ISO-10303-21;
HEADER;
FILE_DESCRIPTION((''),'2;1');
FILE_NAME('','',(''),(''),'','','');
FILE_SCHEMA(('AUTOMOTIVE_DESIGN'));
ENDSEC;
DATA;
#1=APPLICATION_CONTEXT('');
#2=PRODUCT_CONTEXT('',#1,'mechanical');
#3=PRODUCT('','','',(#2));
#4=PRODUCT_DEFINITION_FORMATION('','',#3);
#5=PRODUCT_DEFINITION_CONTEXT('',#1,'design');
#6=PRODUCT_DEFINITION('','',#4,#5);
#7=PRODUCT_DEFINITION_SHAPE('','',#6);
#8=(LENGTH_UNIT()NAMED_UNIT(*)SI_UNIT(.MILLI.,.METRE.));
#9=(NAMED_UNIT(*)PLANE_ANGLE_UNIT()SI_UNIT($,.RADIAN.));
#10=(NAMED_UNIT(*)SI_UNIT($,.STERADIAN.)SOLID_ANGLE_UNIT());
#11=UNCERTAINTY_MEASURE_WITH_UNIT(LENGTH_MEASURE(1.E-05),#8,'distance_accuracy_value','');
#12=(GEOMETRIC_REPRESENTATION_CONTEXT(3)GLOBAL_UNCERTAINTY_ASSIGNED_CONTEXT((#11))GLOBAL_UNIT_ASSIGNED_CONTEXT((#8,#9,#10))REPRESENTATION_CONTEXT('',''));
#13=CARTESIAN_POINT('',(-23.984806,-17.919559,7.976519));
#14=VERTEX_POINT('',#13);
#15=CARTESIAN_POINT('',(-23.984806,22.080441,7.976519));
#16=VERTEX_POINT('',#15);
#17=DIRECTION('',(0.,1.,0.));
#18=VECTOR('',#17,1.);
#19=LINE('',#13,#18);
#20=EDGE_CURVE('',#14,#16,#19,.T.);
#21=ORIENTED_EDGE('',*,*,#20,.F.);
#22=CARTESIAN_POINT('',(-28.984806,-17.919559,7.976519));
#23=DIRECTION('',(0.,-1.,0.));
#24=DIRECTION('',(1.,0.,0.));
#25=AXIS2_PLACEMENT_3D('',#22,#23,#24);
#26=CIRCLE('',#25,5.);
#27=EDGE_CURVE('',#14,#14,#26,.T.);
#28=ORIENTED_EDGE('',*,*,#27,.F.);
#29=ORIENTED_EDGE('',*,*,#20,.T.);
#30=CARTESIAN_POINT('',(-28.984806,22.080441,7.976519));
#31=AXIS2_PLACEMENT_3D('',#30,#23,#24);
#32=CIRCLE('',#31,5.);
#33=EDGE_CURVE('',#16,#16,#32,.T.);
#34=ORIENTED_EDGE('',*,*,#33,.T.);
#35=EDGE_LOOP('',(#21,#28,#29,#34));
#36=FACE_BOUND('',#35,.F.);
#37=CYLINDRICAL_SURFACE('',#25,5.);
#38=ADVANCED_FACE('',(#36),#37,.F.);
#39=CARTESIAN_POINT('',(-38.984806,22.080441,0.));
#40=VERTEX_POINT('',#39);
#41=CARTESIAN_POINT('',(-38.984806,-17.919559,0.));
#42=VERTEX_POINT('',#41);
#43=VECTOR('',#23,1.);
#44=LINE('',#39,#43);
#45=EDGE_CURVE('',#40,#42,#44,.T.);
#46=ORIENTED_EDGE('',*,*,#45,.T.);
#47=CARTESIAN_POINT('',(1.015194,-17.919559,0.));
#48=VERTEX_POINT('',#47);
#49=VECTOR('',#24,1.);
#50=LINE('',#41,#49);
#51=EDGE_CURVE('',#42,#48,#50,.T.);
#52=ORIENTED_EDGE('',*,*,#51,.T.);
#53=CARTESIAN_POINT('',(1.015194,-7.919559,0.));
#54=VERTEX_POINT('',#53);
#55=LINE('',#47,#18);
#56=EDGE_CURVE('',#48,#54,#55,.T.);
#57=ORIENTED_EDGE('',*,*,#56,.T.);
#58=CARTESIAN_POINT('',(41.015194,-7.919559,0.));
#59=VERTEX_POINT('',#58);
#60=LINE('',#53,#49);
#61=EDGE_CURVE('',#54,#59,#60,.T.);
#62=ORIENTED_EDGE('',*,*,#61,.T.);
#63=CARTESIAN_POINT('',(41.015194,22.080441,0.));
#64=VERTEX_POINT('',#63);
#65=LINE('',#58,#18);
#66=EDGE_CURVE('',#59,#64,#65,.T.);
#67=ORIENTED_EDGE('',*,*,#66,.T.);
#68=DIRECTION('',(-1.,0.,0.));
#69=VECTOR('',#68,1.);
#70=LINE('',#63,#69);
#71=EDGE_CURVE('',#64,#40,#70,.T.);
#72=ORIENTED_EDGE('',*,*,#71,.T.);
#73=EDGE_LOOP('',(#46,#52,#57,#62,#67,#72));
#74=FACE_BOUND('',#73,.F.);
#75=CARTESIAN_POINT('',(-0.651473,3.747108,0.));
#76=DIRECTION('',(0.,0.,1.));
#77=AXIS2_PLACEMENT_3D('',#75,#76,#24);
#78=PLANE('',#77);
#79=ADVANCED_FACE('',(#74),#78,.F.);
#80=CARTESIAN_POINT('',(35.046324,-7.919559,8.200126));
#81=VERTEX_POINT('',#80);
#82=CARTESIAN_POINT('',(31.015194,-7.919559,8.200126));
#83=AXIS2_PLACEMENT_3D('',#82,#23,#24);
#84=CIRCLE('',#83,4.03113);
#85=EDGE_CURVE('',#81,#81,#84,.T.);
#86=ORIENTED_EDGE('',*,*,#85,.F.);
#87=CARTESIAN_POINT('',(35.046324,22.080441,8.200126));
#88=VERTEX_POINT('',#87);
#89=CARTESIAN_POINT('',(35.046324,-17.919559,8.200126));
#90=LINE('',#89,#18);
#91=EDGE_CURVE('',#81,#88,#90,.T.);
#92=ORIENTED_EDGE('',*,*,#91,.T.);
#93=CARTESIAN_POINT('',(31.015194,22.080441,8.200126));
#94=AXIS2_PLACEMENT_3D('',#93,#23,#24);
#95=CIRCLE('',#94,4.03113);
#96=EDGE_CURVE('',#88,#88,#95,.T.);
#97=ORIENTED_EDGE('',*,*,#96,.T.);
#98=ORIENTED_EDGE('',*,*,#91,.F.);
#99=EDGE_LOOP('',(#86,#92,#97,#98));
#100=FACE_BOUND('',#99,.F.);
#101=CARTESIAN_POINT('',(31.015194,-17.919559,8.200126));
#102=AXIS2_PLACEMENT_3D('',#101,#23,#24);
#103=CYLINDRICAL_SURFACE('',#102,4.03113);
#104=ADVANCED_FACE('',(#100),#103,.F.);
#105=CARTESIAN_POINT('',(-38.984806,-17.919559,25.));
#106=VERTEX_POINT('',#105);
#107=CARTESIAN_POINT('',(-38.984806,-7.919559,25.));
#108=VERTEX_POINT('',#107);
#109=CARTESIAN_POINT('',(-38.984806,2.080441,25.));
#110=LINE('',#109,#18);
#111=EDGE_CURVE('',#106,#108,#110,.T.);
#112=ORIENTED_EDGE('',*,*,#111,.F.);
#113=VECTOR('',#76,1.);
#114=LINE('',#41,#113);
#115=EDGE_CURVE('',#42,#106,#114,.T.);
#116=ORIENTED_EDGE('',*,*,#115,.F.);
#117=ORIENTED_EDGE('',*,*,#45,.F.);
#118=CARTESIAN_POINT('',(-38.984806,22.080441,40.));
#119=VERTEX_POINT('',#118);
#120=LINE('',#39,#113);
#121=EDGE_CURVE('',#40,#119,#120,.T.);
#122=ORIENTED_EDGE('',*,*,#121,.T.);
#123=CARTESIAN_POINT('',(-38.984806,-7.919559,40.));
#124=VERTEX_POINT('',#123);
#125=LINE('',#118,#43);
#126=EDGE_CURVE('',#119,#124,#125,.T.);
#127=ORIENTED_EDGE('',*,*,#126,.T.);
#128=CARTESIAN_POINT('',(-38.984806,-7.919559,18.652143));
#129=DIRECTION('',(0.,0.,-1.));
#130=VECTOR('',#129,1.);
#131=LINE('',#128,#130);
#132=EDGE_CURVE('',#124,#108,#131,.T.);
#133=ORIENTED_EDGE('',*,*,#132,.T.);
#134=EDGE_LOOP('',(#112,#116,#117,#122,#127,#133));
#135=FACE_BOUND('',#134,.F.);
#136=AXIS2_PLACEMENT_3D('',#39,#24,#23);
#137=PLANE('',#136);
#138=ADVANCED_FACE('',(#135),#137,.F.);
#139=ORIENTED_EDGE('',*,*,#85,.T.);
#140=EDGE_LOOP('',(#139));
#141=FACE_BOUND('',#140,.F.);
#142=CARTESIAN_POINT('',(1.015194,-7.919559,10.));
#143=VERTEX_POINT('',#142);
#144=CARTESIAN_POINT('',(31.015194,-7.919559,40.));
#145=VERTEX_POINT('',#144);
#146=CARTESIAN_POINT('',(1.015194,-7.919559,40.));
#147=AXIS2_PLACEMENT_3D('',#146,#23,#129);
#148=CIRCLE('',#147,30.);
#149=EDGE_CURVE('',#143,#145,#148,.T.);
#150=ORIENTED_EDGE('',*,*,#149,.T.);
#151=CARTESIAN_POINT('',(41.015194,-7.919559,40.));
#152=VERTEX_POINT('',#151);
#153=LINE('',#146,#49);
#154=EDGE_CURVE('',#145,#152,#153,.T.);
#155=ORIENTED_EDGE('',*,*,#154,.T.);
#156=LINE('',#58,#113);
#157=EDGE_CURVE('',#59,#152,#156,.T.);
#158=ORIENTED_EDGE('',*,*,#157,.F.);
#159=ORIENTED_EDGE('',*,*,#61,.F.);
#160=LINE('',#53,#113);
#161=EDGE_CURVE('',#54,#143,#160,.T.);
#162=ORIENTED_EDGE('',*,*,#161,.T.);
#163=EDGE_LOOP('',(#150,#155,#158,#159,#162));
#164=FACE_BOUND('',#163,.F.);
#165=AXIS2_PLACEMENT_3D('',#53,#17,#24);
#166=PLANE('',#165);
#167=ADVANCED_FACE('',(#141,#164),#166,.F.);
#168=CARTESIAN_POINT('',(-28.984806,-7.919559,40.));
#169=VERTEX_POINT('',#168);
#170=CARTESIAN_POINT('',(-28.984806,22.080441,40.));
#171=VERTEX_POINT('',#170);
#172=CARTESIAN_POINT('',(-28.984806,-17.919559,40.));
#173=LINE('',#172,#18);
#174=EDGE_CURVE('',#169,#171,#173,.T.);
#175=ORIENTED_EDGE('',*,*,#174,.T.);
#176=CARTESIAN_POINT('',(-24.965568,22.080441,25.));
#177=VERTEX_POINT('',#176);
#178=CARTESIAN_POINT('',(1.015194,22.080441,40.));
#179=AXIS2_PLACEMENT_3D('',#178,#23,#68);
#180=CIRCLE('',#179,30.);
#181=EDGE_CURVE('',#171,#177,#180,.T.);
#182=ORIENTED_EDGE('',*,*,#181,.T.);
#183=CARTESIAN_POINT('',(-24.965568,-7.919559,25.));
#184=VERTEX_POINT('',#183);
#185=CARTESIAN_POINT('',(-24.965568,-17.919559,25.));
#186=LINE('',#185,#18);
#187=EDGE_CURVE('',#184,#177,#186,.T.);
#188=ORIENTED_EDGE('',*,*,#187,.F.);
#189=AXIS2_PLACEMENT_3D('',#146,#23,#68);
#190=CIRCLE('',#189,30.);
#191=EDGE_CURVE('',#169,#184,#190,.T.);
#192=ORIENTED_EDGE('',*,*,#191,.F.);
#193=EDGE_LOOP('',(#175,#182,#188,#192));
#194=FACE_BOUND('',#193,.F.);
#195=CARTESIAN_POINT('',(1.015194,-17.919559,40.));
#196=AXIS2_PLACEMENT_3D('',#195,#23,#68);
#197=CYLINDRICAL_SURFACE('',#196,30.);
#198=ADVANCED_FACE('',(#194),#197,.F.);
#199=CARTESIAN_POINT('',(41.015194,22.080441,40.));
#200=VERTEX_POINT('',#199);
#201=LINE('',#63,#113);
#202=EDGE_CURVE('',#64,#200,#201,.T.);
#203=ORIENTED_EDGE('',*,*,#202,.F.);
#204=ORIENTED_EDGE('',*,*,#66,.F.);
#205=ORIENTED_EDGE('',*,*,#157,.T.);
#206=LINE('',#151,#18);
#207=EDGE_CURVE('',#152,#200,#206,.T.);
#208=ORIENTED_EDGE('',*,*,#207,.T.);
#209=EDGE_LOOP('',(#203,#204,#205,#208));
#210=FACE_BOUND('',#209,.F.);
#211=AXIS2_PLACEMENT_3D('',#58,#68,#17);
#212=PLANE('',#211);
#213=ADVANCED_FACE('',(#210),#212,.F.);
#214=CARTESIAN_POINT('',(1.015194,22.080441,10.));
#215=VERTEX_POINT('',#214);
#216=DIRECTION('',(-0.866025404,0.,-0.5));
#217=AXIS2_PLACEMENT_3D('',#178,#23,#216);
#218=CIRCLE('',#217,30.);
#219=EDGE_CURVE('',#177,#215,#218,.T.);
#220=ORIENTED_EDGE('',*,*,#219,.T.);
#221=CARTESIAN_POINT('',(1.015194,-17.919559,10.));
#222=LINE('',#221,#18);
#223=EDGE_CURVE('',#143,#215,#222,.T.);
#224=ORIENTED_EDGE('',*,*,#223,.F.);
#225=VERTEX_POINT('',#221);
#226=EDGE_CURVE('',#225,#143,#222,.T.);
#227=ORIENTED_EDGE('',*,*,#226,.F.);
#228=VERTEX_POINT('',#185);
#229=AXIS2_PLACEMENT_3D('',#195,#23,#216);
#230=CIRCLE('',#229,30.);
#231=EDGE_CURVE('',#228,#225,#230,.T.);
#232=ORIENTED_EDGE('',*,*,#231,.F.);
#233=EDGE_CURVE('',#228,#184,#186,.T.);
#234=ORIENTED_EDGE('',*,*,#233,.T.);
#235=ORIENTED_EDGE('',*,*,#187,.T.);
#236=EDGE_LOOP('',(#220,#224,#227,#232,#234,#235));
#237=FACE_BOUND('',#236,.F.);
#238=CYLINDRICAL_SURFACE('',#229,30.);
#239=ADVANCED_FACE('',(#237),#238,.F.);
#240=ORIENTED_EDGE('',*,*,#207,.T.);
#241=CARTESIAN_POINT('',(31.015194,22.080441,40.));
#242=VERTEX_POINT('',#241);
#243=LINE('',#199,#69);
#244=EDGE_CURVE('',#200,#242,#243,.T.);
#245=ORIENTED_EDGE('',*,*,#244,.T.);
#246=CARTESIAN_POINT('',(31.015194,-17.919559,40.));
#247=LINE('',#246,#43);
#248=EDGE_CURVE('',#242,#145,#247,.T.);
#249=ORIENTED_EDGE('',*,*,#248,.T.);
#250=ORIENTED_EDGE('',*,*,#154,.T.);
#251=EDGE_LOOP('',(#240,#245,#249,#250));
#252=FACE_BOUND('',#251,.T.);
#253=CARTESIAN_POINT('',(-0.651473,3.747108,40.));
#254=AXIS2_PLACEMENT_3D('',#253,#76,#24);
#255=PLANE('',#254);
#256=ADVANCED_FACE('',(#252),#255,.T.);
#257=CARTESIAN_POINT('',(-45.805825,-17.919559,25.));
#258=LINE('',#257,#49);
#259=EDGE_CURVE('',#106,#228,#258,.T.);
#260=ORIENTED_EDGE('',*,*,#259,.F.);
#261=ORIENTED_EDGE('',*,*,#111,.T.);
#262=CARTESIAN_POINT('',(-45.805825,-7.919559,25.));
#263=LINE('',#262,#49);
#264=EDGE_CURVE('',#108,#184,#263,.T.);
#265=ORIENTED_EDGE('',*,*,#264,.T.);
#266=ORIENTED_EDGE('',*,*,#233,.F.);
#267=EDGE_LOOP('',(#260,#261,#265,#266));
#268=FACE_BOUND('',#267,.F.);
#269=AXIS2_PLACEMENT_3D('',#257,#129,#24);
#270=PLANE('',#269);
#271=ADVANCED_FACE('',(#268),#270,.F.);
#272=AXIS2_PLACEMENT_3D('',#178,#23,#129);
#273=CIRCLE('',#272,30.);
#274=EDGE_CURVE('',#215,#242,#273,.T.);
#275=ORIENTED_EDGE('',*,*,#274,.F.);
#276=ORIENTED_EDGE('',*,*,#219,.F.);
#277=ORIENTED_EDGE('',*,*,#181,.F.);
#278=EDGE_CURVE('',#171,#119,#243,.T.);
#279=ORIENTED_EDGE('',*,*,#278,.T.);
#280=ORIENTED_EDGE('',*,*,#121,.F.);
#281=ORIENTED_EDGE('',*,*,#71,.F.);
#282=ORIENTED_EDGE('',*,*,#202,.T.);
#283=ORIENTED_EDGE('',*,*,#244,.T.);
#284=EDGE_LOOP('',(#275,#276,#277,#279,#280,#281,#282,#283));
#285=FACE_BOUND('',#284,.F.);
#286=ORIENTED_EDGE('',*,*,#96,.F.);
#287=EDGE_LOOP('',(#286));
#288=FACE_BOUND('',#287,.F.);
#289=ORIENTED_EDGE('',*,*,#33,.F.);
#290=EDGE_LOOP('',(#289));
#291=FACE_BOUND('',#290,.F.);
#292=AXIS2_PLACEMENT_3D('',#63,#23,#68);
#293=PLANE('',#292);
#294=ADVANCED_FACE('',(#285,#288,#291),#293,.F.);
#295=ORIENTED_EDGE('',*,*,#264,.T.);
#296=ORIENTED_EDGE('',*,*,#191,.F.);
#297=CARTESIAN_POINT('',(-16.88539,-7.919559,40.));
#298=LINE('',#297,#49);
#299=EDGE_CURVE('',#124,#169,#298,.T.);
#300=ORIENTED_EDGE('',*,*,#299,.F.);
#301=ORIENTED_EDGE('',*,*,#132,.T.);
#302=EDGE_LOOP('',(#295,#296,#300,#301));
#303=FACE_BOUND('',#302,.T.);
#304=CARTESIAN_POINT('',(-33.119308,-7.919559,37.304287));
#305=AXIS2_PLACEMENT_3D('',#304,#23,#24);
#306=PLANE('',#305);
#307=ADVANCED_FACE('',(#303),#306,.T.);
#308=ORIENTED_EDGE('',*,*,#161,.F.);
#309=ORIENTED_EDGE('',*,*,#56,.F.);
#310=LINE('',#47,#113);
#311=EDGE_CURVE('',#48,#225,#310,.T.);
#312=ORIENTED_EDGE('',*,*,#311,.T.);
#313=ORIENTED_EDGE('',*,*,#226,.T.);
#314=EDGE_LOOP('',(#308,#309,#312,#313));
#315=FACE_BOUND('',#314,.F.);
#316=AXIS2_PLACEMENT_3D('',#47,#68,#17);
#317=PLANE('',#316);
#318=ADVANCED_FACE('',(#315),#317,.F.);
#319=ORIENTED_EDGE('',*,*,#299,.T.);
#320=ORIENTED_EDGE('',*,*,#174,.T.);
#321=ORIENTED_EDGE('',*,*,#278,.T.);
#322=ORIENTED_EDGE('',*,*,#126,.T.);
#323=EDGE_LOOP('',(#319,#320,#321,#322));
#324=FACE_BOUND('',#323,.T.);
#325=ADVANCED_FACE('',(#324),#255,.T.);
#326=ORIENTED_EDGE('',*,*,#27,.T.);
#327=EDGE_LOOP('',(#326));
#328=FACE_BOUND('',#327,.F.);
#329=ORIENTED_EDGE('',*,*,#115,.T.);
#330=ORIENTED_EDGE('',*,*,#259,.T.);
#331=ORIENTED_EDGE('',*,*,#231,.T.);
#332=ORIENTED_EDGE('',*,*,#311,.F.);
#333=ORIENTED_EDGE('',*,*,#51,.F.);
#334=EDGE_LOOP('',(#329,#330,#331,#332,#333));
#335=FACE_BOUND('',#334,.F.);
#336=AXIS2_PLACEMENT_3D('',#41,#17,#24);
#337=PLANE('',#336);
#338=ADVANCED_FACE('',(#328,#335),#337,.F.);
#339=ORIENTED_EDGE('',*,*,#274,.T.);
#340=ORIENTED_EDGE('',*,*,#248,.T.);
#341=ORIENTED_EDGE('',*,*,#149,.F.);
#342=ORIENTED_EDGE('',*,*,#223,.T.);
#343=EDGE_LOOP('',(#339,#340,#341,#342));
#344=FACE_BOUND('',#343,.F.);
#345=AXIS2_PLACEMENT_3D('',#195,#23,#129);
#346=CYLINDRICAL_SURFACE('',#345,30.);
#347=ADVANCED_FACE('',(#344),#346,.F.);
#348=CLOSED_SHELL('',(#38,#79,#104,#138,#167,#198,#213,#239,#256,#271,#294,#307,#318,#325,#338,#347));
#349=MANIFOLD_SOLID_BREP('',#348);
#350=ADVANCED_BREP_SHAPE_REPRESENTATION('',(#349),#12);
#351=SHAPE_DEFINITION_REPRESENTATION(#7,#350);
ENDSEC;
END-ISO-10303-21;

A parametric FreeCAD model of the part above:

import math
import FreeCAD as App
import Part
import Sketcher

V = App.Vector

doc = App.newDocument("Part")
body = doc.addObject("PartDesign::Body", "Body")

sketch1 = body.newObject("Sketcher::SketchObject", "Sketch")
sketch1.AttachmentSupport = (doc.getObject("XY_Plane"), [""])
sketch1.MapMode = "FlatFace"
sketch1.addGeometry([
    Part.LineSegment(V(41, 22, 0), V(-39, 22, 0)),
    Part.LineSegment(V(-39, 22, 0), V(-39, -18, 0)),
    Part.LineSegment(V(-39, -18, 0), V(1, -18, 0)),
    Part.LineSegment(V(1, -18, 0), V(1, -8, 0)),
    Part.LineSegment(V(1, -8, 0), V(41, -8, 0)),
    Part.LineSegment(V(41, -8, 0), V(41, 22, 0)),
], False)
sketch1.addConstraint([
    Sketcher.Constraint("Coincident", 0, 2, 1, 1),
    Sketcher.Constraint("Coincident", 1, 2, 2, 1),
    Sketcher.Constraint("Coincident", 2, 2, 3, 1),
    Sketcher.Constraint("Coincident", 3, 2, 4, 1),
    Sketcher.Constraint("Coincident", 4, 2, 5, 1),
    Sketcher.Constraint("Coincident", 5, 2, 0, 1),
    Sketcher.Constraint("Horizontal", 0),
    Sketcher.Constraint("Vertical", 1),
    Sketcher.Constraint("Horizontal", 2),
    Sketcher.Constraint("Vertical", 3),
    Sketcher.Constraint("Horizontal", 4),
    Sketcher.Constraint("Vertical", 5),
    Sketcher.Constraint("Equal", 2, 4),
    Sketcher.Constraint("Equal", 4, 1),
    Sketcher.Constraint("DistanceX", 0, 2, 0, 1, 80.0),
    Sketcher.Constraint("DistanceY", 3, 1, 3, 2, 10.0),
    Sketcher.Constraint("DistanceY", -1, 1, 0, 2, 22.080441),
    Sketcher.Constraint("DistanceX", 0, 2, -1, 1, 38.984806),
])
pad1 = body.newObject("PartDesign::Pad", "Pad")
pad1.Profile = sketch1
pad1.Length = 40

sketch2 = body.newObject("Sketcher::SketchObject", "Sketch001")
sketch2.AttachmentSupport = (doc.getObject("XZ_Plane"), [""])
sketch2.MapMode = "FlatFace"
sketch2.AttachmentOffset = App.Placement(V(0, 0, 17.919559), App.Rotation())
sketch2.addGeometry([
    Part.ArcOfCircle(Part.Circle(V(1, 40, 0), V(0, 0, 1), 30), math.radians(-90), math.radians(170)),
    Part.ArcOfCircle(Part.Circle(V(1, 40, 0), V(0, 0, 1), 30), math.radians(170.42), math.radians(180)),
    Part.ArcOfCircle(Part.Circle(V(1, 40, 0), V(0, 0, 1), 30), math.radians(180), math.radians(210)),
    Part.ArcOfCircle(Part.Circle(V(1, 40, 0), V(0, 0, 1), 30), math.radians(-150), math.radians(-90)),
    Part.Circle(V(-29, 8, 0), V(0, 0, 1), 5),
    Part.Circle(V(31, 8.2, 0), V(0, 0, 1), 4),
], False)
sketch2.addConstraint([
    Sketcher.Constraint("Tangent", 0, 2, 1, 1),
    Sketcher.Constraint("Tangent", 1, 2, 2, 1),
    Sketcher.Constraint("Tangent", 2, 2, 3, 1),
    Sketcher.Constraint("Tangent", 3, 2, 0, 1),
    Sketcher.Constraint("Equal", 0, 1),
    Sketcher.Constraint("Horizontal", 3, 3, 1, 2),
    Sketcher.Constraint("Vertical", 4, 3, 1, 2),
    Sketcher.Constraint("Vertical", 2, 3, 3, 2),
    Sketcher.Constraint("Diameter", 4, 10.0),
    Sketcher.Constraint("Radius", 0, 30.0),
    Sketcher.Constraint("DistanceY", -1, 1, 0, 3, 40.0),
    Sketcher.Constraint("DistanceY", -1, 1, 2, 2, 25.0),
    Sketcher.Constraint("DistanceX", 1, 3, 5, 3, 30.0),
    Sketcher.Constraint("Diameter", 5, 8.06226),
    Sketcher.Constraint("DistanceY", -1, 1, 4, 3, 7.976519),
    Sketcher.Constraint("DistanceX", 0, 2, -1, 1, 28.56624),
    Sketcher.Constraint("DistanceX", 2, 2, -1, 1, 24.965568),
    Sketcher.Constraint("DistanceY", -1, 1, 5, 3, 8.200126),
])
pocket1 = body.newObject("PartDesign::Pocket", "Pocket")
pocket1.Profile = sketch2
pocket1.Type = "ThroughAll"

sketch3 = body.newObject("Sketcher::SketchObject", "Sketch002")
sketch3.AttachmentSupport = (doc.getObject("XZ_Plane"), [""])
sketch3.MapMode = "FlatFace"
sketch3.AttachmentOffset = App.Placement(V(0, 0, 17.919559), App.Rotation())
sketch3.addGeometry([
    Part.LineSegment(V(-20, 49, 0), V(-46, 49, 0)),
    Part.LineSegment(V(-46, 49, 0), V(-46, 25, 0)),
    Part.LineSegment(V(-46, 25, 0), V(-20, 25, 0)),
    Part.LineSegment(V(-20, 25, 0), V(-20, 49, 0)),
], False)
sketch3.addConstraint([
    Sketcher.Constraint("Coincident", 0, 2, 1, 1),
    Sketcher.Constraint("Coincident", 1, 2, 2, 1),
    Sketcher.Constraint("Coincident", 2, 2, 3, 1),
    Sketcher.Constraint("Coincident", 3, 2, 0, 1),
    Sketcher.Constraint("Horizontal", 0),
    Sketcher.Constraint("Vertical", 1),
    Sketcher.Constraint("Horizontal", 2),
    Sketcher.Constraint("Vertical", 3),
    Sketcher.Constraint("DistanceY", -1, 1, 1, 2, 25.0),
    Sketcher.Constraint("DistanceY", 1, 2, 1, 1, 23.60722),
    Sketcher.Constraint("DistanceX", 0, 2, 0, 1, 25.887465),
    Sketcher.Constraint("DistanceX", 2, 2, -1, 1, 19.91836),
])
pocket2 = body.newObject("PartDesign::Pocket", "Pocket001")
pocket2.Profile = sketch3
pocket2.Length = 10

doc.recompute()
